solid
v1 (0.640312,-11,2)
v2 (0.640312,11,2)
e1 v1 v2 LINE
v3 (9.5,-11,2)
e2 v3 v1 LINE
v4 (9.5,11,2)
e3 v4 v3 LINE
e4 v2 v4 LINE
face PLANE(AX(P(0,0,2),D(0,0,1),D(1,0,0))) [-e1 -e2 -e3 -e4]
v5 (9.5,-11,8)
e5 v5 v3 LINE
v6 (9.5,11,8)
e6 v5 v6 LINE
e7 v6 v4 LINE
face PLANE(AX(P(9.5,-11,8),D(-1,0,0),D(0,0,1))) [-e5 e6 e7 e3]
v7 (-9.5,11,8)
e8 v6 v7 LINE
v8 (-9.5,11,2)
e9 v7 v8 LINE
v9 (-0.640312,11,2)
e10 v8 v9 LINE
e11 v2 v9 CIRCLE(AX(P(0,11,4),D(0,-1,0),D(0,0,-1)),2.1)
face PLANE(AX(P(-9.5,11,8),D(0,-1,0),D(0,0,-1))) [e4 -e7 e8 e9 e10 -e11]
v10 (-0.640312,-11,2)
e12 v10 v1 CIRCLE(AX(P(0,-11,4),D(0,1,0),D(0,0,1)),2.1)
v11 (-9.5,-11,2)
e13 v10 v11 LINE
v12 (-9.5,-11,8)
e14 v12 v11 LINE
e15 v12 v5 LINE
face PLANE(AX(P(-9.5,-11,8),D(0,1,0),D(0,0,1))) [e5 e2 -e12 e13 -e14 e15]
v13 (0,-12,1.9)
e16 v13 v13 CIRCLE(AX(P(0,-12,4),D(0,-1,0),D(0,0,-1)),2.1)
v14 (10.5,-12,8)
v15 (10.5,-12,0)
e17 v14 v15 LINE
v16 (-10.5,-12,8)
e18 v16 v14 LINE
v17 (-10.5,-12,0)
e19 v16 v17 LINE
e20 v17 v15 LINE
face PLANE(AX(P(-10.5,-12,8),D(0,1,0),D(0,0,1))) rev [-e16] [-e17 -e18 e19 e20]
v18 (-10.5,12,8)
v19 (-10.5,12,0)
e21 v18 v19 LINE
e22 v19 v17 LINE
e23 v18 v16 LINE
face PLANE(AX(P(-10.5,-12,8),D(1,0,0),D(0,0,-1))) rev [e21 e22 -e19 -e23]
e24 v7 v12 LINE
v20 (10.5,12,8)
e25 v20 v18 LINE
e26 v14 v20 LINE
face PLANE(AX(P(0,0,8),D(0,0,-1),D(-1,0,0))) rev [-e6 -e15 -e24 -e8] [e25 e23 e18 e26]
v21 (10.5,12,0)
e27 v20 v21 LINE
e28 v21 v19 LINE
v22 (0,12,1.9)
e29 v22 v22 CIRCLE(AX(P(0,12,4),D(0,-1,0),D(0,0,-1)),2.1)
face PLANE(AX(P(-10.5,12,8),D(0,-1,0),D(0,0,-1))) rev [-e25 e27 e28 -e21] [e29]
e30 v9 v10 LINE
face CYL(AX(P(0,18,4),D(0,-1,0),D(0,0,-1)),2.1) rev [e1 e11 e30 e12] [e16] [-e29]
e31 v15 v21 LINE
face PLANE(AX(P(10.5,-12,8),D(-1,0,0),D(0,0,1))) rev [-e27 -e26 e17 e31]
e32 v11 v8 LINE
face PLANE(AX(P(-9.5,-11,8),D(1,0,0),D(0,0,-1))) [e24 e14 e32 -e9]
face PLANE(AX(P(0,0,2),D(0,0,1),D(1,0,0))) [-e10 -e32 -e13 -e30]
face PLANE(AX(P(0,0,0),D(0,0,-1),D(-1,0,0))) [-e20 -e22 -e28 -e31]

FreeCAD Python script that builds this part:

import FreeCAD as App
import Part
import Sketcher
from FreeCAD import Vector

doc = App.newDocument("Part")
body = doc.addObject("PartDesign::Body", "Body")

# Sketch on XY plane
sketch1 = doc.addObject("Sketcher::SketchObject", "Sketch")
body.addObject(sketch1)
sketch1.AttachmentSupport = (doc.XY_Plane, [""])
sketch1.MapMode = "FlatFace"
sketch1.addGeometry([
    Part.LineSegment(Vector(-10.5, 12, 0), Vector(-10.5, -12, 0)),  # 0
    Part.LineSegment(Vector(-10.5, -12, 0), Vector(10.5, -12, 0)),  # 1
    Part.LineSegment(Vector(10.5, -12, 0), Vector(10.5, 12, 0)),  # 2
    Part.LineSegment(Vector(10.5, 12, 0), Vector(-10.5, 12, 0)),  # 3
    Part.LineSegment(Vector(9.5, -11, 0), Vector(-9.5, -11, 0)),  # 4
    Part.LineSegment(Vector(-9.5, -11, 0), Vector(-9.5, 11, 0)),  # 5
    Part.LineSegment(Vector(-9.5, 11, 0), Vector(9.5, 11, 0)),  # 6
    Part.LineSegment(Vector(9.5, 11, 0), Vector(9.5, -11, 0)),  # 7
], False)
sketch1.addConstraint([
    Sketcher.Constraint("Coincident", 0, 2, 1, 1),
    Sketcher.Constraint("Coincident", 1, 2, 2, 1),
    Sketcher.Constraint("Coincident", 2, 2, 3, 1),
    Sketcher.Constraint("Coincident", 3, 2, 0, 1),
    Sketcher.Constraint("Coincident", 4, 2, 5, 1),
    Sketcher.Constraint("Coincident", 5, 2, 6, 1),
    Sketcher.Constraint("Coincident", 6, 2, 7, 1),
    Sketcher.Constraint("Coincident", 7, 2, 4, 1),
    Sketcher.Constraint("Vertical", 0),
    Sketcher.Constraint("Horizontal", 1),
    Sketcher.Constraint("Vertical", 2),
    Sketcher.Constraint("Horizontal", 3),
    Sketcher.Constraint("Horizontal", 4),
    Sketcher.Constraint("Vertical", 5),
    Sketcher.Constraint("Horizontal", 6),
    Sketcher.Constraint("Vertical", 7),
    Sketcher.Constraint("Symmetric", 0, 2, 2, 2, -1, 1),
    Sketcher.Constraint("Symmetric", 4, 2, 6, 2, -1, 1),
    Sketcher.Constraint("DistanceX", 1, 1, 1, 2, 21.0),
    Sketcher.Constraint("DistanceX", 4, 2, 4, 1, 19.0),
    Sketcher.Constraint("DistanceY", 0, 2, 0, 1, 24.0),
    Sketcher.Constraint("DistanceY", 5, 1, 5, 2, 22.0),
])
pad1 = doc.addObject("PartDesign::Pad", "Pad")
body.addObject(pad1)
pad1.Profile = sketch1
pad1.Length = 8

# Sketch on XY plane
sketch2 = doc.addObject("Sketcher::SketchObject", "Sketch001")
body.addObject(sketch2)
sketch2.AttachmentSupport = (doc.XY_Plane, [""])
sketch2.MapMode = "FlatFace"
sketch2.addGeometry([
    Part.LineSegment(Vector(9.5, 11, 0), Vector(9.5, -11, 0)),
    Part.LineSegment(Vector(9.5, -11, 0), Vector(-9.5, -11, 0)),
    Part.LineSegment(Vector(-9.5, -11, 0), Vector(-9.5, 11, 0)),
    Part.LineSegment(Vector(-9.5, 11, 0), Vector(9.5, 11, 0)),
], False)
sketch2.addConstraint([
    Sketcher.Constraint("Coincident", 0, 2, 1, 1),
    Sketcher.Constraint("Coincident", 1, 2, 2, 1),
    Sketcher.Constraint("Coincident", 2, 2, 3, 1),
    Sketcher.Constraint("Coincident", 3, 2, 0, 1),
    Sketcher.Constraint("Vertical", 0),
    Sketcher.Constraint("Horizontal", 1),
    Sketcher.Constraint("Vertical", 2),
    Sketcher.Constraint("Horizontal", 3),
    Sketcher.Constraint("Symmetric", 0, 2, 2, 2, -1, 1),
    Sketcher.Constraint("DistanceX", 1, 2, 1, 1, 19.0),
    Sketcher.Constraint("DistanceY", 0, 2, 0, 1, 22.0),
])
pad2 = doc.addObject("PartDesign::Pad", "Pad001")
body.addObject(pad2)
pad2.Profile = sketch2
pad2.Length = 2

# Sketch on XZ plane
sketch3 = doc.addObject("Sketcher::SketchObject", "Sketch002")
body.addObject(sketch3)
sketch3.AttachmentSupport = (doc.XZ_Plane, [""])
sketch3.MapMode = "FlatFace"
sketch3.AttachmentOffset = App.Placement(Vector(0, 0, 12), App.Rotation())
sketch3.addGeometry(Part.Circle(Vector(0, 4, 0), Vector(0, 0, 1), 2.1), False)
sketch3.addConstraint([
    Sketcher.Constraint("PointOnObject", 0, 3, -2),
    Sketcher.Constraint("Diameter", 0, 4.2),
    Sketcher.Constraint("DistanceY", -1, 1, 0, 3, 4.0),
])
pocket1 = doc.addObject("PartDesign::Pocket", "Pocket")
body.addObject(pocket1)
pocket1.Profile = sketch3
pocket1.Length = 30

doc.recompute()
